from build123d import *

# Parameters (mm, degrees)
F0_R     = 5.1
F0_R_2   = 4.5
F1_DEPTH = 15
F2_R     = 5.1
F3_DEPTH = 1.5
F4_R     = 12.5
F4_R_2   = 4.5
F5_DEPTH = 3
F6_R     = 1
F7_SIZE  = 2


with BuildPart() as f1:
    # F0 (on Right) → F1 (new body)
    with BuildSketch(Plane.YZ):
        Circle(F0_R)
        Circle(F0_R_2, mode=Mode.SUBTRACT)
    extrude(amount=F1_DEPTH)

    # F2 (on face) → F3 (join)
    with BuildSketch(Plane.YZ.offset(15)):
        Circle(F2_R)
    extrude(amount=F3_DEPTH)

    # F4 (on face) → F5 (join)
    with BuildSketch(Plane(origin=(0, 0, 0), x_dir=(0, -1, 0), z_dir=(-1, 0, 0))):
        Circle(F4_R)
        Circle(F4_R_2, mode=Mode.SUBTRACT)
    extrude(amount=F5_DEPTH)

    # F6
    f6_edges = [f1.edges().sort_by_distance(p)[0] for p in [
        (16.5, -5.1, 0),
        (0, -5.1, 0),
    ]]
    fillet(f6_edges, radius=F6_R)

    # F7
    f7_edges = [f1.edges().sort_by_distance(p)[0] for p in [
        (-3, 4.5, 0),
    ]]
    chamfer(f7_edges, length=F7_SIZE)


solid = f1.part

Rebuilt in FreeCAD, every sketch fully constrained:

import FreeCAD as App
import Part
import Sketcher
from FreeCAD import Vector


def edges_at(feature, points):
    """Names of the edges that pass closest to the given points."""
    edges = feature.Shape.Edges
    near = lambda p: min(range(len(edges)), key=lambda i: edges[i].distToShape(Part.Vertex(*p))[0])
    return sorted({f"Edge{near(p) + 1}" for p in points})

doc = App.newDocument("Part")
body = doc.addObject("PartDesign::Body", "Body")

sketch1 = body.newObject("Sketcher::SketchObject", "Sketch")
sketch1.AttachmentSupport = (doc.getObject("YZ_Plane"), [""])
sketch1.MapMode = "FlatFace"
sketch1.addGeometry([
    Part.Circle(Vector(0, 0, 0), Vector(0, 0, 1), 5.1),
    Part.Circle(Vector(0, 0, 0), Vector(0, 0, 1), 4.5),
], False)
sketch1.addConstraint([
    Sketcher.Constraint("Coincident", 0, 3, -1, 1),
    Sketcher.Constraint("Coincident", 1, 3, -1, 1),
    Sketcher.Constraint("Diameter", 1, 9.0),
    Sketcher.Constraint("Diameter", 0, 10.2),
])
pad1 = body.newObject("PartDesign::Pad", "Pad")
pad1.Profile = sketch1
pad1.Length = 15

sketch2 = body.newObject("Sketcher::SketchObject", "Sketch001")
sketch2.AttachmentSupport = (doc.getObject("YZ_Plane"), [""])
sketch2.MapMode = "FlatFace"
sketch2.AttachmentOffset = App.Placement(Vector(0, 0, 15), App.Rotation())
sketch2.addGeometry(Part.Circle(Vector(0, 0, 0), Vector(0, 0, 1), 5), False)
sketch2.addConstraint([
    Sketcher.Constraint("Coincident", 0, 3, -1, 1),
    Sketcher.Constraint("Diameter", 0, 10.2),
])
pad2 = body.newObject("PartDesign::Pad", "Pad001")
pad2.Profile = sketch2
pad2.Length = 1.5

sketch3 = body.newObject("Sketcher::SketchObject", "Sketch002")
sketch3.AttachmentSupport = (doc.getObject("YZ_Plane"), [""])
sketch3.MapMode = "FlatFace"
sketch3.addGeometry([
    Part.Circle(Vector(0, 0, 0), Vector(0, 0, 1), 12.5),
    Part.Circle(Vector(0, 0, 0), Vector(0, 0, 1), 4.5),
], False)
sketch3.addConstraint([
    Sketcher.Constraint("Coincident", 0, 3, -1, 1),
    Sketcher.Constraint("Coincident", 1, 3, -1, 1),
    Sketcher.Constraint("Diameter", 0, 25.0),
    Sketcher.Constraint("Diameter", 1, 9.0),
])
pad3 = body.newObject("PartDesign::Pad", "Pad002")
pad3.Profile = sketch3
pad3.Length = 3
pad3.Reversed = True
doc.recompute()

fillet = body.newObject("PartDesign::Fillet", "Fillet")
fillet.Base = (pad3, edges_at(pad3, [(16.5, -5.1, 0), (0, -5.1, 0)]))
fillet.Radius = 1
doc.recompute()

chamfer = body.newObject("PartDesign::Chamfer", "Chamfer")
chamfer.Base = (fillet, edges_at(fillet, [(-3, 4.5, 0)]))
chamfer.Size = 2

doc.recompute()
